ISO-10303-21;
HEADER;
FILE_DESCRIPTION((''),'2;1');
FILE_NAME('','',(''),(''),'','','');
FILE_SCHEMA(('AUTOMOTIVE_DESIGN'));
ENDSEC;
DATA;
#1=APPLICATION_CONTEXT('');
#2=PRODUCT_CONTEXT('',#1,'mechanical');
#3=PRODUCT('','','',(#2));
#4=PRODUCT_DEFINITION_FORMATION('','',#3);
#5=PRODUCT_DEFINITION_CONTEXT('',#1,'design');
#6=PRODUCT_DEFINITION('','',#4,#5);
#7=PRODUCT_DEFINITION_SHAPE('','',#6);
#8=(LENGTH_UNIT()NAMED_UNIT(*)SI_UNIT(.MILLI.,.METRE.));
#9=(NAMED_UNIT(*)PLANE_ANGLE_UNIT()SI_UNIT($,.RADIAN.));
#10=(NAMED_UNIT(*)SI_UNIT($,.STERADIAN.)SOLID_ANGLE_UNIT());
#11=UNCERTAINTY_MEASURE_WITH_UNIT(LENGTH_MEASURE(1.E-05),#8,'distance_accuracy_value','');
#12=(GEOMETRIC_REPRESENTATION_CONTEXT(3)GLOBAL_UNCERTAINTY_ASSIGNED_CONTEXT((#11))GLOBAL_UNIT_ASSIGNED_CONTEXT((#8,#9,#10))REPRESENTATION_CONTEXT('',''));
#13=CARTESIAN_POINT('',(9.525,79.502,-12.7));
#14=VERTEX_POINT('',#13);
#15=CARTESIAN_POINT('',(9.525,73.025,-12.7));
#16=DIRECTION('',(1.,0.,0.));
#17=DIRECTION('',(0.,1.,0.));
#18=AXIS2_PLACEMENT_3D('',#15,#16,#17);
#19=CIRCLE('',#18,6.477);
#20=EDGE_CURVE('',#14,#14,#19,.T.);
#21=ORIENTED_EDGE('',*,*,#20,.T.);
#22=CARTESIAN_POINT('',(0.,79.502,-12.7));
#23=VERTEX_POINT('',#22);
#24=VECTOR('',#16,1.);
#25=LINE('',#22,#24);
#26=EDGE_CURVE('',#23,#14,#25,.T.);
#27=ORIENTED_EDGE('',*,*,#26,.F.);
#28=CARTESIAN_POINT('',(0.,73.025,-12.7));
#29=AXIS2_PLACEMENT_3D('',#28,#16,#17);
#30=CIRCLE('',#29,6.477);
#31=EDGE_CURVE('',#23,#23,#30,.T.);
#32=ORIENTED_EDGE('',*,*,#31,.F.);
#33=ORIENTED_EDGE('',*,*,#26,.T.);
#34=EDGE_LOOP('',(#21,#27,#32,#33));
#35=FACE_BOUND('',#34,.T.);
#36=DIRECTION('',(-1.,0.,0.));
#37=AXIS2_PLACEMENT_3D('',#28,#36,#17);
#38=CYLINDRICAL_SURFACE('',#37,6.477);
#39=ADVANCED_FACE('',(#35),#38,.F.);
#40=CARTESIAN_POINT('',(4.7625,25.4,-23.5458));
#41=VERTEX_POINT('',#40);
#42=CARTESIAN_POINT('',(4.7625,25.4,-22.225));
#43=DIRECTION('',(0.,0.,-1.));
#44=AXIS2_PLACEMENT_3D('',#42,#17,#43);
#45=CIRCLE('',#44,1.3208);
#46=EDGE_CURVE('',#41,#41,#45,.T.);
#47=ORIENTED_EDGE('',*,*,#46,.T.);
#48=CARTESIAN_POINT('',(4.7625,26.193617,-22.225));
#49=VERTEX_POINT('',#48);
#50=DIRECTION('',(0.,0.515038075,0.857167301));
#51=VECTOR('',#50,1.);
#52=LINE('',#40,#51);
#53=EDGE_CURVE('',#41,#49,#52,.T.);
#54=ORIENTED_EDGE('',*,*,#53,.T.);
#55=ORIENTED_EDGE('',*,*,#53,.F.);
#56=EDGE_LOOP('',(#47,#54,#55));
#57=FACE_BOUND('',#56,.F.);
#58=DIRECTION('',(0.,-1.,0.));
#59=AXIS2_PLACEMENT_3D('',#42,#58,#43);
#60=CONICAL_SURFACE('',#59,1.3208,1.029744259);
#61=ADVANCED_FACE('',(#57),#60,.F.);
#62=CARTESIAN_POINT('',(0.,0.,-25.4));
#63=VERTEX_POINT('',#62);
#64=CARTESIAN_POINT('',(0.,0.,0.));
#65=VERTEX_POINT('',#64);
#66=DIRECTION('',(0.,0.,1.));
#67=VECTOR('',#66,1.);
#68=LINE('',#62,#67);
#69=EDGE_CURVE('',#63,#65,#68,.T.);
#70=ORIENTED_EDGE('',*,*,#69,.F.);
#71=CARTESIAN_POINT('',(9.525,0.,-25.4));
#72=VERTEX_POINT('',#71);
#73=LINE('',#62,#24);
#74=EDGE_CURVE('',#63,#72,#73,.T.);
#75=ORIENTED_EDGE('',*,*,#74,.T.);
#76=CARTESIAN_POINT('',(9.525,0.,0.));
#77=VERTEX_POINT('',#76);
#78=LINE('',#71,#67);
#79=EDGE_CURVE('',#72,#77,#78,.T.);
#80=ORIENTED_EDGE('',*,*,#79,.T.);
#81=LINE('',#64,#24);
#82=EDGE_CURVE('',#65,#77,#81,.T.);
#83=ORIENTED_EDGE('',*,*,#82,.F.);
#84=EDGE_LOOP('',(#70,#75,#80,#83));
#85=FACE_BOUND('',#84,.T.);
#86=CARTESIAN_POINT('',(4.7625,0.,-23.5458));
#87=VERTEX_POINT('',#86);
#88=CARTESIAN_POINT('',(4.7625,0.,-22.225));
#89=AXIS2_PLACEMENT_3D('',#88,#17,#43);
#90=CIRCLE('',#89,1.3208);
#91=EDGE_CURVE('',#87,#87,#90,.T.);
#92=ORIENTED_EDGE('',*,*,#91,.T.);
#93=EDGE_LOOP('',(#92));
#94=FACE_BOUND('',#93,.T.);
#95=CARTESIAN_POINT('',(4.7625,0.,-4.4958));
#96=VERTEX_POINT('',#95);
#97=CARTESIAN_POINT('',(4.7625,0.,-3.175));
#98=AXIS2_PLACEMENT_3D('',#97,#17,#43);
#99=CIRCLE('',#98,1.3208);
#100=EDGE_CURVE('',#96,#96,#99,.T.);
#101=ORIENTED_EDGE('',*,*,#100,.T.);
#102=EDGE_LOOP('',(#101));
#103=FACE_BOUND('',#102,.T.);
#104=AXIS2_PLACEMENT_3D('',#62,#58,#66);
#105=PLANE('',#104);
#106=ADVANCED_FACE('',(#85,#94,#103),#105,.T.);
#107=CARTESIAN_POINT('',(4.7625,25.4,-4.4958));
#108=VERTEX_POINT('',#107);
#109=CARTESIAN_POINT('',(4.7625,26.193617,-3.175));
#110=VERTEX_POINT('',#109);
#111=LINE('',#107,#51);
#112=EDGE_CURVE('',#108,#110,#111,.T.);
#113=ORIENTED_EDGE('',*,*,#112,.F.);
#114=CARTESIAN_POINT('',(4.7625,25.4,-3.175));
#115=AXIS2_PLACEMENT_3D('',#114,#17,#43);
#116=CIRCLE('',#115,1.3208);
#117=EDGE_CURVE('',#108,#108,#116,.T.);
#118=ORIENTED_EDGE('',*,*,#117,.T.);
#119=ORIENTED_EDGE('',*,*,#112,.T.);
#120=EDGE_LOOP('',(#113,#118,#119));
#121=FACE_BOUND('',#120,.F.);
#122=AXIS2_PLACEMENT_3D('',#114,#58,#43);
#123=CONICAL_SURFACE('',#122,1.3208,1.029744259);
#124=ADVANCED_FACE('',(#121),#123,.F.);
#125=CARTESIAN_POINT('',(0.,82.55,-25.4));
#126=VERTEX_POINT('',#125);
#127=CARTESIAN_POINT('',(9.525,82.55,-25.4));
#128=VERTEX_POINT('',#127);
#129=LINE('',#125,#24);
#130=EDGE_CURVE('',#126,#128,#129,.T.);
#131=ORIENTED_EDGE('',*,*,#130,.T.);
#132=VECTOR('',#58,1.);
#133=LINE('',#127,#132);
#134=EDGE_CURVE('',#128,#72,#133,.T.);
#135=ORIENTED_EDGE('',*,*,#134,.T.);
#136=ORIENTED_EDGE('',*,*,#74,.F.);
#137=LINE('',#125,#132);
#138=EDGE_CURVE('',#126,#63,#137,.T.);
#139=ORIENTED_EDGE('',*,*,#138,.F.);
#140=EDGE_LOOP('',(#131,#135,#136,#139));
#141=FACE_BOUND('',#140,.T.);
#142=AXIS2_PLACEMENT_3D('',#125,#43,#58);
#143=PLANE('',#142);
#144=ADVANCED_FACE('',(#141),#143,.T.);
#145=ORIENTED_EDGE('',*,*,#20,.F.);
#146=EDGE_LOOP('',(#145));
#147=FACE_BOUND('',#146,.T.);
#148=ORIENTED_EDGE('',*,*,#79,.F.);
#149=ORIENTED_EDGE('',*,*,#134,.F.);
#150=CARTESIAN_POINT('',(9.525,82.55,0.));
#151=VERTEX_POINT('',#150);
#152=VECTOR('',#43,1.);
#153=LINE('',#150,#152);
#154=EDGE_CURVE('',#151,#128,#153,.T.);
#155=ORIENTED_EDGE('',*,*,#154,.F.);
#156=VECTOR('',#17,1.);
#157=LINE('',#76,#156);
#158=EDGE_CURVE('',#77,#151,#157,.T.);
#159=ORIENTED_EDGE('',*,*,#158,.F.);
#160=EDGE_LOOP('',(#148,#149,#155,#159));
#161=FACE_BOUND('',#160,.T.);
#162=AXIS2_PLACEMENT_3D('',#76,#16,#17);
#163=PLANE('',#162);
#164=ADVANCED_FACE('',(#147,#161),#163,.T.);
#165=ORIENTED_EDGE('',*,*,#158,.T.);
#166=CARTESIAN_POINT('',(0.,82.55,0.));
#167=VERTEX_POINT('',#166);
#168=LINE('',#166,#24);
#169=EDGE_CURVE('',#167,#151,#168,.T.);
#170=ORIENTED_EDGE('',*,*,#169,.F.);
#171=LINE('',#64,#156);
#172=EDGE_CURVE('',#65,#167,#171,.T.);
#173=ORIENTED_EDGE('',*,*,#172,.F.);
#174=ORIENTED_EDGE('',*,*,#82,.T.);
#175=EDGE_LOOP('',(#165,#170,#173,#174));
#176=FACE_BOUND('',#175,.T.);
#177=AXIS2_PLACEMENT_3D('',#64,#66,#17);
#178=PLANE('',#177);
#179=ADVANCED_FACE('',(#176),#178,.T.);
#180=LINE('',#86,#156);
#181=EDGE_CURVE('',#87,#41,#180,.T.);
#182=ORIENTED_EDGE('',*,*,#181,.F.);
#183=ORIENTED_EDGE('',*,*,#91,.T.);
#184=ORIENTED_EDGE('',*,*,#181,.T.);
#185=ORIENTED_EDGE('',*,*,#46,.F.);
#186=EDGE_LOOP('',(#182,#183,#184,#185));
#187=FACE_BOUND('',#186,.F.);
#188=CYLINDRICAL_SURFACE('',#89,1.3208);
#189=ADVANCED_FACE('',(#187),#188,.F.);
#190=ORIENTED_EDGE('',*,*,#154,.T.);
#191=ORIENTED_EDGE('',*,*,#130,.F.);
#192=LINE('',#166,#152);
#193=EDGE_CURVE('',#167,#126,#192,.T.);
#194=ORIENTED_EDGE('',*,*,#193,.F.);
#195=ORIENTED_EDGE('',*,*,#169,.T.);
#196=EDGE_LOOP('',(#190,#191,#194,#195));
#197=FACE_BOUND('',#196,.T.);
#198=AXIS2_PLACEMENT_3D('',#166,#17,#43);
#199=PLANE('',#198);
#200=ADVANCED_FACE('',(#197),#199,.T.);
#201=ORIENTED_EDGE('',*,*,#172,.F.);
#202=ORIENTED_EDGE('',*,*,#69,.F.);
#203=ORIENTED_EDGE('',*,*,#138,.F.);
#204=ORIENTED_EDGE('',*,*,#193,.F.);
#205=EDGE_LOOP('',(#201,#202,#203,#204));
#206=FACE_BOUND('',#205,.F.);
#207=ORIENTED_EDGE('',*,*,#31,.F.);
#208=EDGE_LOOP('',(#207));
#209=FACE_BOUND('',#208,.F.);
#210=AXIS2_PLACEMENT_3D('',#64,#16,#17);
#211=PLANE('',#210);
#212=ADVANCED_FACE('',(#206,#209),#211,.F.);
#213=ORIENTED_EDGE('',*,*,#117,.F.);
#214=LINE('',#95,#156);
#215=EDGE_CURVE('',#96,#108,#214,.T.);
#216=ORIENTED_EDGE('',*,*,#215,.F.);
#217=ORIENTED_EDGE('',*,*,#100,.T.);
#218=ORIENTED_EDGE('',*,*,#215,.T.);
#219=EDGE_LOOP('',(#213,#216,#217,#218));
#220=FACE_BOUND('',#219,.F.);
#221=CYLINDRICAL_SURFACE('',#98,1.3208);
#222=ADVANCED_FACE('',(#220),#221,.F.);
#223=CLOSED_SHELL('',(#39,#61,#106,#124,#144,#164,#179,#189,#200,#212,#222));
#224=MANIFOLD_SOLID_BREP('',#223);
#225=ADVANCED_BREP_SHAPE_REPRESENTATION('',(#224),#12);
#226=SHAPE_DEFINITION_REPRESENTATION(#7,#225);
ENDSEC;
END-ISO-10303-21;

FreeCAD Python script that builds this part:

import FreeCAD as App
import Part
import Sketcher
from FreeCAD import Vector
Q = App.Units.Quantity

doc = App.newDocument("Part")
body = doc.addObject("PartDesign::Body", "Body")

# Sketch on YZ plane
sketch1 = doc.addObject("Sketcher::SketchObject", "Sketch")
body.addObject(sketch1)
sketch1.AttachmentSupport = (doc.YZ_Plane, [""])
sketch1.MapMode = "FlatFace"
sketch1.addGeometry([
    Part.LineSegment(Vector(82.55, 0, 0), Vector(0, 0, 0)),  # 0
    Part.LineSegment(Vector(0, 0, 0), Vector(0, -25.4, 0)),  # 1
    Part.LineSegment(Vector(0, -25.4, 0), Vector(82.55, -25.4, 0)),  # 2
    Part.LineSegment(Vector(82.55, -25.4, 0), Vector(82.55, 0, 0)),  # 3
    Part.Circle(Vector(73.025, -12.7, 0), Vector(0, 0, 1), 6.477),  # 4
], False)
sketch1.addConstraint([
    Sketcher.Constraint("Coincident", 0, 2, 1, 1),
    Sketcher.Constraint("Coincident", 1, 2, 2, 1),
    Sketcher.Constraint("Coincident", 2, 2, 3, 1),
    Sketcher.Constraint("Coincident", 3, 2, 0, 1),
    Sketcher.Constraint("Horizontal", 0),
    Sketcher.Constraint("Vertical", 1),
    Sketcher.Constraint("Horizontal", 2),
    Sketcher.Constraint("Vertical", 3),
    Sketcher.Constraint("Coincident", 0, 2, -1, 1),
    Sketcher.Constraint("Diameter", 4, Q("0.51 in")),
    Sketcher.Constraint("DistanceY", 1, 2, 1, 1, Q("1 in")),
    Sketcher.Constraint("DistanceX", 0, 2, 0, 1, Q("3.25 in")),
    Sketcher.Constraint("DistanceX", -1, 1, 4, 3, Q("2.875 in")),
    Sketcher.Constraint("DistanceY", 4, 3, -1, 1, Q("0.5 in")),
])
pad1 = doc.addObject("PartDesign::Pad", "Pad")
body.addObject(pad1)
pad1.Profile = sketch1
pad1.Length = Q("0.375 in")

# Sketch on XZ plane
sketch2 = doc.addObject("Sketcher::SketchObject", "Sketch001")
body.addObject(sketch2)
sketch2.AttachmentSupport = (doc.XZ_Plane, [""])
sketch2.MapMode = "FlatFace"
sketch2.addGeometry([
    Part.Circle(Vector(4.7625, -3.175, 0), Vector(0, 0, 1), 1.3208),
    Part.Circle(Vector(4.7625, -22.225, 0), Vector(0, 0, 1), 1.3208),
], False)
sketch2.addConstraint([
    Sketcher.Constraint("Equal", 0, 1),
    Sketcher.Constraint("Vertical", 0, 3, 1, 3),
    Sketcher.Constraint("Diameter", 0, Q("0.104 in")),
    Sketcher.Constraint("DistanceY", 1, 3, 0, 3, Q("0.75 in")),
    Sketcher.Constraint("DistanceX", -1, 1, 0, 3, Q("0.1875 in")),
    Sketcher.Constraint("DistanceY", 0, 3, -1, 1, Q("0.125 in")),
])
doc.recompute()
hole = doc.addObject("PartDesign::Hole", "Hole")
body.addObject(hole)
hole.Profile = sketch2
hole.ThreadType = "None"
hole.Diameter = Q("0.104 in")
hole.DepthType = "Dimension"
hole.Depth = Q("1 in")
hole.DrillPoint = "Angled"
hole.DrillPointAngle = 118

doc.recompute()
